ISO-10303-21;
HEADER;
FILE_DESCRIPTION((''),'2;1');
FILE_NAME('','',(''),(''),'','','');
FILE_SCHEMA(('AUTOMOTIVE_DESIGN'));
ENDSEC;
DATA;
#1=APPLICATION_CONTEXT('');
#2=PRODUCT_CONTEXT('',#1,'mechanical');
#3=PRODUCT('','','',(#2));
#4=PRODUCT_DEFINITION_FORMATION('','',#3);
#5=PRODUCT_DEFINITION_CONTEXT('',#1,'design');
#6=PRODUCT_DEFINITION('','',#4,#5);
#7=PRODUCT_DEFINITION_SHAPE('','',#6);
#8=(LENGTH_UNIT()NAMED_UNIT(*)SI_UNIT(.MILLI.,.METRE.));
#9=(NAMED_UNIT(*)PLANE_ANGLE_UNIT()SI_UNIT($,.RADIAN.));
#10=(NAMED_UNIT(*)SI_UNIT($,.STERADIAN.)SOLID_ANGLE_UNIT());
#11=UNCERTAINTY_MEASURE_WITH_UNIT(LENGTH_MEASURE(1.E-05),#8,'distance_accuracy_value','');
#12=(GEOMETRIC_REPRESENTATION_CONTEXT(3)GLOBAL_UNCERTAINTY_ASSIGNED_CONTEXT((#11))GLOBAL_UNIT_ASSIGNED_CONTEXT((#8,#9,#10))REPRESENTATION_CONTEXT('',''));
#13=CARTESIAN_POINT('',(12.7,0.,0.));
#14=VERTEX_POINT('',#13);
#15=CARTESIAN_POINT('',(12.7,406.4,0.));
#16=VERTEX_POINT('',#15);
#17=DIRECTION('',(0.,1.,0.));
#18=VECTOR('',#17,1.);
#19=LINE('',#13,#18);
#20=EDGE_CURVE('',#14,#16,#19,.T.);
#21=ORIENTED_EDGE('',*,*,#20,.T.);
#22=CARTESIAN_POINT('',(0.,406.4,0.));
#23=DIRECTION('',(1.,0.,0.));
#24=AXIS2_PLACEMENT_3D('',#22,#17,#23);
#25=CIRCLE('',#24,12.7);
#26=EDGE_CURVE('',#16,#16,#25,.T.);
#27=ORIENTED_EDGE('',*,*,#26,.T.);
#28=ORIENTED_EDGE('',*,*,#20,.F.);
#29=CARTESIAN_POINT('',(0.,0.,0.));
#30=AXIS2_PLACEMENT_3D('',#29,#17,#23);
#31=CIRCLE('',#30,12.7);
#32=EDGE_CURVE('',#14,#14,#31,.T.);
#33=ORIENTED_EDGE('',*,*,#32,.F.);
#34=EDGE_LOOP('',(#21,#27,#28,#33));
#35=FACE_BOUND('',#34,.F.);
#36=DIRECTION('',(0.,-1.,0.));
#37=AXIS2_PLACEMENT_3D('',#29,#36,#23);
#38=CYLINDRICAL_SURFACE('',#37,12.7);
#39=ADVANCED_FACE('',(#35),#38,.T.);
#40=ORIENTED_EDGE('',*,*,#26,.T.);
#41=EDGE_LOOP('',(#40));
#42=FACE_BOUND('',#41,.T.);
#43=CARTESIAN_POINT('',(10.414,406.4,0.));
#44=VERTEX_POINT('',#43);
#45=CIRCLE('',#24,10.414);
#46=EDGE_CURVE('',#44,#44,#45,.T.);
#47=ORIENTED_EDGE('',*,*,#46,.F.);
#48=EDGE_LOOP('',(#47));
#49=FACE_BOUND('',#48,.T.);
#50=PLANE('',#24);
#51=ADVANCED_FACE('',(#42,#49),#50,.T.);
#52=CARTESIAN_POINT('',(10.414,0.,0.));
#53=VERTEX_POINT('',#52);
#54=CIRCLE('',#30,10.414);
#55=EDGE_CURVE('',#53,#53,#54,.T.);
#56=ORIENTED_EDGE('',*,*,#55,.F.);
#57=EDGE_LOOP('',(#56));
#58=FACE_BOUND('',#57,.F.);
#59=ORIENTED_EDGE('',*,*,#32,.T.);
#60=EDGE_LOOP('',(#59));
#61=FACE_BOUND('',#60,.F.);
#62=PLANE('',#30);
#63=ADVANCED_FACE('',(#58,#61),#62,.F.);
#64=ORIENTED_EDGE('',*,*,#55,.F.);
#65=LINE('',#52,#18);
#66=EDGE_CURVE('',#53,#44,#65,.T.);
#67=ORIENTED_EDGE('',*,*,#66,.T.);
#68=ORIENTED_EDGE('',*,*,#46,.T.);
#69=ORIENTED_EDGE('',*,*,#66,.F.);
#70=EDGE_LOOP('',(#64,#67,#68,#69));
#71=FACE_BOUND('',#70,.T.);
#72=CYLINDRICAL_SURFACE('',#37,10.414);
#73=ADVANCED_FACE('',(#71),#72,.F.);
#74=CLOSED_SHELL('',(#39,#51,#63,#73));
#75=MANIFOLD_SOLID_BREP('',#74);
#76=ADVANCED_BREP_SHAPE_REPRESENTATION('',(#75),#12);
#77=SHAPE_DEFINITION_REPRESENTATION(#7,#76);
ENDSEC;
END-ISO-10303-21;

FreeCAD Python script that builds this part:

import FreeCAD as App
import Part
import Sketcher
Q = App.Units.Quantity

doc = App.newDocument("Part")
params = doc.addObject("Spreadsheet::Sheet", "Params")
for row, (alias, value) in enumerate([
    ("sketch1_diameter", "1 in"),
    ("sketch1_diameter2", "0.82 in"),
    ("pad1_length", "16 in"),
], start=1):
    params.set(f"A{row}", alias)
    params.set(f"B{row}", "=" + value)
    params.setAlias(f"B{row}", alias)

body = doc.addObject("PartDesign::Body", "Body")

# Sketch on XZ plane
sketch1 = doc.addObject("Sketcher::SketchObject", "Sketch")
body.addObject(sketch1)
sketch1.AttachmentSupport = (doc.XZ_Plane, [""])
sketch1.MapMode = "FlatFace"
sketch1.addGeometry([
    Part.Circle(App.Vector(0, 0, 0), App.Vector(0, 0, 1), 12.7),
    Part.Circle(App.Vector(0, 0, 0), App.Vector(0, 0, 1), 10.414),
], False)
sketch1.addConstraint([
    Sketcher.Constraint("Coincident", 0, 3, -1, 1),
    Sketcher.Constraint("Coincident", 1, 3, -1, 1),
    Sketcher.Constraint("Diameter", 0, Q("1 in")),
    Sketcher.Constraint("Diameter", 1, Q("0.82 in")),
])
sketch1.setExpression("Constraints[2]", "Params.sketch1_diameter")
sketch1.setExpression("Constraints[3]", "Params.sketch1_diameter2")
pad1 = doc.addObject("PartDesign::Pad", "Pad")
body.addObject(pad1)
pad1.Profile = sketch1
pad1.setExpression("Length", "Params.pad1_length")
pad1.Reversed = True

doc.recompute()
